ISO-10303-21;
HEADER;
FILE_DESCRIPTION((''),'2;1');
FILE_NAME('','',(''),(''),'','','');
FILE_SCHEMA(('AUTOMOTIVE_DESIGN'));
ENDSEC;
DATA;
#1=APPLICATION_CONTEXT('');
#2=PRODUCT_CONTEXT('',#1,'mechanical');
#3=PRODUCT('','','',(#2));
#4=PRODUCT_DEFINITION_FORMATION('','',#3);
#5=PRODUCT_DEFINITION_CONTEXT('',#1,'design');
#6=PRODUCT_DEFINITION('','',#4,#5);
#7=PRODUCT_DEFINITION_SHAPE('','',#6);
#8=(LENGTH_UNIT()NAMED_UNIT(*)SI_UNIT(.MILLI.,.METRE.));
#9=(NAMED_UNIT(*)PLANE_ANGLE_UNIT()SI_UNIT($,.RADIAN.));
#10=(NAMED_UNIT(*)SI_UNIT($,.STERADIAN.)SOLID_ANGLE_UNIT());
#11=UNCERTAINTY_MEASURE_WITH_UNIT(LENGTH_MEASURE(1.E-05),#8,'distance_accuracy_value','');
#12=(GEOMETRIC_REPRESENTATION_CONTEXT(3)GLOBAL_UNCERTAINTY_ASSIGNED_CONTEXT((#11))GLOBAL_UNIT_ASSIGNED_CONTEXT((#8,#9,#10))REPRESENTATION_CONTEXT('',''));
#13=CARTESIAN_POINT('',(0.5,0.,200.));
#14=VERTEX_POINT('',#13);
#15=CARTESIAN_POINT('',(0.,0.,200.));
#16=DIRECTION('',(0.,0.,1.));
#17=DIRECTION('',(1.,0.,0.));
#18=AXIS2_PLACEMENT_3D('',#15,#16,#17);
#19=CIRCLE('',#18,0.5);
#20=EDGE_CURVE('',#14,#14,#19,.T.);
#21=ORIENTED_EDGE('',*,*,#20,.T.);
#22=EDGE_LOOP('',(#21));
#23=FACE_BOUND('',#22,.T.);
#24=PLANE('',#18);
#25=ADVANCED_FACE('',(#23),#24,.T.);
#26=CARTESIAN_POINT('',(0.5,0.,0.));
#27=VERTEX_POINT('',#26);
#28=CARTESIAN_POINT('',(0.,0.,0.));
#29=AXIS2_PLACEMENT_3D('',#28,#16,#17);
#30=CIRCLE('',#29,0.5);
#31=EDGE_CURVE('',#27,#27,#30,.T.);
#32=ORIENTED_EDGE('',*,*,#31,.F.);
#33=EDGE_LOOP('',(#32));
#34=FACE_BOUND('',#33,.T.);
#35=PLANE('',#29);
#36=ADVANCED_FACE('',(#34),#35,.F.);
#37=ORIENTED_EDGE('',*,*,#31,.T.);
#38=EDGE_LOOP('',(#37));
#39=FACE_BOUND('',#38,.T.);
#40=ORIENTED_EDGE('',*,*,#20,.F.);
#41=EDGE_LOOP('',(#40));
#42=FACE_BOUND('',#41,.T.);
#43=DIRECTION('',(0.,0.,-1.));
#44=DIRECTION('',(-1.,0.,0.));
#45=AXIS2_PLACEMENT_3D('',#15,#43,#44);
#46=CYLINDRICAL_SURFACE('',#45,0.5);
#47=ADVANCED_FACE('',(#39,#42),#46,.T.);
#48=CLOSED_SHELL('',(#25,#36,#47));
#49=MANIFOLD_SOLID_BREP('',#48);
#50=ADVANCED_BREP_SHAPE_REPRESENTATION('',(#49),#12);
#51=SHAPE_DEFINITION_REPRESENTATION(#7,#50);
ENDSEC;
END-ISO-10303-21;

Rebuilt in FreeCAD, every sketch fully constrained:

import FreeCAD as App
import Part
import Sketcher

V = App.Vector

doc = App.newDocument("Part")
body = doc.addObject("PartDesign::Body", "Body")

# Sketch on XY plane
sketch1 = body.newObject("Sketcher::SketchObject", "Sketch")
sketch1.AttachmentSupport = (doc.getObject("XY_Plane"), [""])
sketch1.MapMode = "FlatFace"
sketch1.addGeometry(Part.Circle(V(0, 0, 0), V(0, 0, 1), 0.5), False)
sketch1.addConstraint([
    Sketcher.Constraint("Coincident", 0, 3, -1, 1),
    Sketcher.Constraint("Diameter", 0, 1.0),
])
pad1 = body.newObject("PartDesign::Pad", "Pad")
pad1.Profile = sketch1
pad1.Length = 200

doc.recompute()
